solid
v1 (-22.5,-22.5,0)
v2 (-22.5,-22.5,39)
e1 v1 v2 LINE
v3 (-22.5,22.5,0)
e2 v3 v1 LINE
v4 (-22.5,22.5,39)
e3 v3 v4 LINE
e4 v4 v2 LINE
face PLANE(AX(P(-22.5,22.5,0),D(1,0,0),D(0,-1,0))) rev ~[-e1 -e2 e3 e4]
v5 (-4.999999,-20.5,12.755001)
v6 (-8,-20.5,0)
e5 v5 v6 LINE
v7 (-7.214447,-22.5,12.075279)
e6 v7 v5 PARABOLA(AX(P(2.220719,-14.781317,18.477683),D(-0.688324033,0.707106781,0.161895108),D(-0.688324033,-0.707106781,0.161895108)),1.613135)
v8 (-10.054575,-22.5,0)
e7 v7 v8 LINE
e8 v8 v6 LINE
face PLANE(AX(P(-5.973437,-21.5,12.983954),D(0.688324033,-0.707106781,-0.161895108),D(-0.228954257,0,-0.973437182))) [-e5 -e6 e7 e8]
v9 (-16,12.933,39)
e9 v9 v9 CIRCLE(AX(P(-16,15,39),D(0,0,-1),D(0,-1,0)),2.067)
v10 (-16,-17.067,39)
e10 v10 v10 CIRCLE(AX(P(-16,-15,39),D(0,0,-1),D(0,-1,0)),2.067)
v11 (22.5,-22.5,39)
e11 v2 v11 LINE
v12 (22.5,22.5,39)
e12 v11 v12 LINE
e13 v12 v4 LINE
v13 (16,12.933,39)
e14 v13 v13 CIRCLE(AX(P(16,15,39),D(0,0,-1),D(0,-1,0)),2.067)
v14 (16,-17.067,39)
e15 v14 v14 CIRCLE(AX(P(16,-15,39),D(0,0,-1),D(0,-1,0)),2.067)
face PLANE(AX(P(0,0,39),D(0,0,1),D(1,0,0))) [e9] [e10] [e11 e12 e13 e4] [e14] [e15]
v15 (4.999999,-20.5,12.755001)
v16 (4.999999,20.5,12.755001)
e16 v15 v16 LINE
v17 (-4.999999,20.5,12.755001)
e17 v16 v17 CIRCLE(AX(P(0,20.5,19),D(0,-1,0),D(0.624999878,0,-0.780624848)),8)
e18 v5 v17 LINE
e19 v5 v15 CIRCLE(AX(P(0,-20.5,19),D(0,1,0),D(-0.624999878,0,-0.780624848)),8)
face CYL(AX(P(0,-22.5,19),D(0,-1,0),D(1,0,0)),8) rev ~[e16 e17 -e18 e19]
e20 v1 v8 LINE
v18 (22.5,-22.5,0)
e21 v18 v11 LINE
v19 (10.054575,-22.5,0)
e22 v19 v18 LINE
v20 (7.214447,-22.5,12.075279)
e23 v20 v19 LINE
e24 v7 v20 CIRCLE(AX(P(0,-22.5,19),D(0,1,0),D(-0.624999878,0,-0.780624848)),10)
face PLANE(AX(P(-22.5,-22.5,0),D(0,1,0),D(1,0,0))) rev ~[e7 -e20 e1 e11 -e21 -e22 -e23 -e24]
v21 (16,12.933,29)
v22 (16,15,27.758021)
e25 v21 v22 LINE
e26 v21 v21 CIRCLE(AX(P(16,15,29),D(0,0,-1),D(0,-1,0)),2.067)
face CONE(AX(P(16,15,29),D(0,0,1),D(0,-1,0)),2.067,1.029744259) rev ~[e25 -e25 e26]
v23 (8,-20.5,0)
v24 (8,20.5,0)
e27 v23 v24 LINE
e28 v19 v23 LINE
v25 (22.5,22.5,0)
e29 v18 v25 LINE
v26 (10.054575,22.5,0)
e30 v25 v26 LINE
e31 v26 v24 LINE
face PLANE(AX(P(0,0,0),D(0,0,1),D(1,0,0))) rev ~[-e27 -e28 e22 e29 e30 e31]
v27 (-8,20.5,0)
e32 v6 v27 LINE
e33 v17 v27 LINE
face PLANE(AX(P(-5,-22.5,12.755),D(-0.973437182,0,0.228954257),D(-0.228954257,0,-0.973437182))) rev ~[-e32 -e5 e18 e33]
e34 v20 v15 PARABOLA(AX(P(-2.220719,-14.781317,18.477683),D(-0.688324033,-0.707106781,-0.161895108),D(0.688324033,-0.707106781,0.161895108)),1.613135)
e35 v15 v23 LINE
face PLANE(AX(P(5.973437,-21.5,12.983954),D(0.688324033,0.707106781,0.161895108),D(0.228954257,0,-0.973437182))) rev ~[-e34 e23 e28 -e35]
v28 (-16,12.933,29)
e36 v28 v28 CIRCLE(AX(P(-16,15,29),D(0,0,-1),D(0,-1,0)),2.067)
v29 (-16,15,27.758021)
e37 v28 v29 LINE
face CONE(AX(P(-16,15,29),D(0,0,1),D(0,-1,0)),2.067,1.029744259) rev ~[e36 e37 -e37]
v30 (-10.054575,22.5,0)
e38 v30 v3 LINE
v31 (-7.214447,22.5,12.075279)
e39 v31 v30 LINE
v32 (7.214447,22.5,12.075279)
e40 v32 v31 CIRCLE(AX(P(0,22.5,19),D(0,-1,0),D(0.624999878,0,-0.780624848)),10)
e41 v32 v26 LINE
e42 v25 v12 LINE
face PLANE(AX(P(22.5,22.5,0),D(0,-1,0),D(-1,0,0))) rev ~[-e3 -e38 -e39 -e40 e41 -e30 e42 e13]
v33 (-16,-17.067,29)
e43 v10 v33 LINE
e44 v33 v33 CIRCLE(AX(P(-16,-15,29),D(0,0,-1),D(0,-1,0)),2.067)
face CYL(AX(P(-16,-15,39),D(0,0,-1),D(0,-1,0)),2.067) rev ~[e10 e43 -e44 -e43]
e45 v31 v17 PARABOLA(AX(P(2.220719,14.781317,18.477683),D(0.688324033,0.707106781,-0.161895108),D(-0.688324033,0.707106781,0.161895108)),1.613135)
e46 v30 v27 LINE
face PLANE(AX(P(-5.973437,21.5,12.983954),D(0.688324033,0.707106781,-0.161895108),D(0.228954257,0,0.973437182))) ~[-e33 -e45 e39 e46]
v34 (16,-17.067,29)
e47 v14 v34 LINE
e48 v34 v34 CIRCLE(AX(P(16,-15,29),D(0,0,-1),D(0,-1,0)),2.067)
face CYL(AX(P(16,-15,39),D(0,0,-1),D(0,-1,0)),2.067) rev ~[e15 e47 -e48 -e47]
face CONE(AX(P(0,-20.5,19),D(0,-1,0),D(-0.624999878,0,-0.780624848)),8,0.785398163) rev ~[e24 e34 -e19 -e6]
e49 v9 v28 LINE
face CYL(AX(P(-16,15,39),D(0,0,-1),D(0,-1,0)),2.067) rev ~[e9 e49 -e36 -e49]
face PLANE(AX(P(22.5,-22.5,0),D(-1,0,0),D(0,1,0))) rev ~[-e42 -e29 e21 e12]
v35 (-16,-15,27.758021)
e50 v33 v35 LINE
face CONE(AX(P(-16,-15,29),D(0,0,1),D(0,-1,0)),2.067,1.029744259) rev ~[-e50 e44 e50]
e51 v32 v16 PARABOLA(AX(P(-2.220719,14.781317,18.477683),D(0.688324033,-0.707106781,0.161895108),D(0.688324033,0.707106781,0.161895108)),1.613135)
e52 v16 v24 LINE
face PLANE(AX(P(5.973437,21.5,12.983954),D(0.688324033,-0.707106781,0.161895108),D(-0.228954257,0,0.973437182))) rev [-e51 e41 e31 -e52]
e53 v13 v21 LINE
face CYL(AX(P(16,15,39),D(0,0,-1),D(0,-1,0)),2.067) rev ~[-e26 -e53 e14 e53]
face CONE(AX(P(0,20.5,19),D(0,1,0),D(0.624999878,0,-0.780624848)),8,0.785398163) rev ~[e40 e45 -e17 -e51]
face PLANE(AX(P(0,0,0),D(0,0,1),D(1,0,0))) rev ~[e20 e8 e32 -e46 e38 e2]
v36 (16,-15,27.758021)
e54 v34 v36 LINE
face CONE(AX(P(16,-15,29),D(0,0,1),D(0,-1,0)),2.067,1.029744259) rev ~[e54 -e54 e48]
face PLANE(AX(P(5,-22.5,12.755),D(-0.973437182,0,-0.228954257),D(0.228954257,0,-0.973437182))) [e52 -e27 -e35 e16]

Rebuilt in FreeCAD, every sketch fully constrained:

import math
import FreeCAD as App
import Part
import Sketcher

V = App.Vector
Q = App.Units.Quantity


def edges_at(feature, points):
    """Names of the edges that pass closest to the given points."""
    edges = feature.Shape.Edges
    near = lambda p: min(range(len(edges)), key=lambda i: edges[i].distToShape(Part.Vertex(*p))[0])
    return sorted({f"Edge{near(p) + 1}" for p in points})


def add_polygon(sketch, points):
    """Adds a closed chain of lines whose ends are joined by coincident constraints."""
    first, n = sketch.GeometryCount, len(points)
    for a, b in zip(points, points[1:] + points[:1]):
        sketch.addGeometry(Part.LineSegment(App.Vector(*a, 0), App.Vector(*b, 0)), False)
    for i in range(n):
        sketch.addConstraint(Sketcher.Constraint("Coincident", first + i, 2, first + (i + 1) % n, 1))

doc = App.newDocument("Part")
body = doc.addObject("PartDesign::Body", "Body")

# Sketch on XY plane
sketch1 = doc.addObject("Sketcher::SketchObject", "Sketch")
body.addObject(sketch1)
sketch1.AttachmentSupport = (doc.XY_Plane, [""])
sketch1.MapMode = "FlatFace"
add_polygon(sketch1, [(-22, 22), (-22, -22), (22, -22), (22, 22)])  # lines 0-3
sketch1.addConstraint(Sketcher.Constraint("Vertical", 0))
sketch1.addConstraint(Sketcher.Constraint("Horizontal", 1))
sketch1.addConstraint(Sketcher.Constraint("Vertical", 2))
sketch1.addConstraint(Sketcher.Constraint("Horizontal", 3))
sketch1.addConstraint(Sketcher.Constraint("Symmetric", 0, 2, 2, 2, -1, 1))
sketch1.addConstraint(Sketcher.Constraint("Equal", 3, 0))
sketch1.addConstraint(Sketcher.Constraint("DistanceX", 1, 1, 1, 2, Q("45 mm")))
pad1 = doc.addObject("PartDesign::Pad", "Pad")
body.addObject(pad1)
pad1.Profile = sketch1
pad1.Length = 39

# Sketch on XZ plane
sketch2 = doc.addObject("Sketcher::SketchObject", "Sketch001")
body.addObject(sketch2)
sketch2.AttachmentSupport = (doc.XZ_Plane, [""])
sketch2.MapMode = "FlatFace"
sketch2.AttachmentOffset = App.Placement(V(0, 0, 22.5), App.Rotation())
sketch2.addGeometry(Part.LineSegment(V(-5, 13, 0), V(-8, 0, 0)), False)
sketch2.addGeometry(Part.LineSegment(V(-8, 0, 0), V(8, 0, 0)), False)
sketch2.addGeometry(Part.LineSegment(V(8, 0, 0), V(5, 13, 0)), False)
sketch2.addGeometry(Part.ArcOfCircle(Part.Circle(V(0, 19, 0), V(0, 0, 1), 8), math.radians(-51), math.radians(231)), False)
sketch2.addConstraint(Sketcher.Constraint("Coincident", 0, 2, 1, 1))
sketch2.addConstraint(Sketcher.Constraint("Coincident", 1, 2, 2, 1))
sketch2.addConstraint(Sketcher.Constraint("Coincident", 2, 2, 3, 1))
sketch2.addConstraint(Sketcher.Constraint("Coincident", 3, 2, 0, 1))
sketch2.addConstraint(Sketcher.Constraint("Horizontal", 1))
sketch2.addConstraint(Sketcher.Constraint("Symmetric", 0, 2, 1, 2, -1, 1))
sketch2.addConstraint(Sketcher.Constraint("Symmetric", 2, 2, 3, 2, -2))
sketch2.addConstraint(Sketcher.Constraint("Radius", 3, Q("8 mm")))
sketch2.addConstraint(Sketcher.Constraint("DistanceX", 1, 1, 1, 2, Q("16 mm")))
sketch2.addConstraint(Sketcher.Constraint("DistanceX", 3, 2, 2, 2, Q("10 mm")))
sketch2.addConstraint(Sketcher.Constraint("DistanceY", -1, 1, 3, 3, Q("19 mm")))
pocket1 = doc.addObject("PartDesign::Pocket", "Pocket")
body.addObject(pocket1)
pocket1.Profile = sketch2
pocket1.Type = "ThroughAll"
doc.recompute()

chamfer = doc.addObject("PartDesign::Chamfer", "Chamfer")
body.addObject(chamfer)
chamfer.Base = (pocket1, edges_at(pocket1, [
    (0, -22.5, 27),
    (-6.5, -22.5, 6.378),
    (6.5, -22.5, 6.378),
    (0, 22.5, 27),
    (-6.5, 22.5, 6.378),
    (6.5, 22.5, 6.378),
]))
chamfer.Size = 2

# Sketch on XY plane
sketch3 = doc.addObject("Sketcher::SketchObject", "Sketch002")
body.addObject(sketch3)
sketch3.AttachmentSupport = (doc.XY_Plane, [""])
sketch3.MapMode = "FlatFace"
sketch3.AttachmentOffset = App.Placement(V(0, 0, 39), App.Rotation())
sketch3.addGeometry(Part.Circle(V(-16, -15, 0), V(0, 0, 1), 2.1), False)
sketch3.addGeometry(Part.Circle(V(16, -15, 0), V(0, 0, 1), 2.1), False)
sketch3.addGeometry(Part.Circle(V(-16, 15, 0), V(0, 0, 1), 2.1), False)
sketch3.addGeometry(Part.Circle(V(16, 15, 0), V(0, 0, 1), 2.1), False)
sketch3.addConstraint(Sketcher.Constraint("Equal", 0, 1))
sketch3.addConstraint(Sketcher.Constraint("Equal", 1, 2))
sketch3.addConstraint(Sketcher.Constraint("Equal", 2, 3))
sketch3.addConstraint(Sketcher.Constraint("Symmetric", 1, 3, 2, 3, -1, 1))
sketch3.addConstraint(Sketcher.Constraint("Symmetric", 0, 3, 3, 3, -1, 1))
sketch3.addConstraint(Sketcher.Constraint("Symmetric", 0, 3, 1, 3, -2))
sketch3.addConstraint(Sketcher.Constraint("Diameter", 0, Q("4.134 mm")))
sketch3.addConstraint(Sketcher.Constraint("DistanceX", 0, 3, -1, 1, Q("16 mm")))
sketch3.addConstraint(Sketcher.Constraint("DistanceY", 0, 3, -1, 1, Q("15 mm")))
doc.recompute()
hole = doc.addObject("PartDesign::Hole", "Hole")
body.addObject(hole)
hole.Profile = sketch3
hole.ThreadType = "None"
hole.Diameter = 4.134
hole.DepthType = "Dimension"
hole.Depth = 10
hole.DrillPoint = "Angled"
hole.DrillPointAngle = 118

doc.recompute()
